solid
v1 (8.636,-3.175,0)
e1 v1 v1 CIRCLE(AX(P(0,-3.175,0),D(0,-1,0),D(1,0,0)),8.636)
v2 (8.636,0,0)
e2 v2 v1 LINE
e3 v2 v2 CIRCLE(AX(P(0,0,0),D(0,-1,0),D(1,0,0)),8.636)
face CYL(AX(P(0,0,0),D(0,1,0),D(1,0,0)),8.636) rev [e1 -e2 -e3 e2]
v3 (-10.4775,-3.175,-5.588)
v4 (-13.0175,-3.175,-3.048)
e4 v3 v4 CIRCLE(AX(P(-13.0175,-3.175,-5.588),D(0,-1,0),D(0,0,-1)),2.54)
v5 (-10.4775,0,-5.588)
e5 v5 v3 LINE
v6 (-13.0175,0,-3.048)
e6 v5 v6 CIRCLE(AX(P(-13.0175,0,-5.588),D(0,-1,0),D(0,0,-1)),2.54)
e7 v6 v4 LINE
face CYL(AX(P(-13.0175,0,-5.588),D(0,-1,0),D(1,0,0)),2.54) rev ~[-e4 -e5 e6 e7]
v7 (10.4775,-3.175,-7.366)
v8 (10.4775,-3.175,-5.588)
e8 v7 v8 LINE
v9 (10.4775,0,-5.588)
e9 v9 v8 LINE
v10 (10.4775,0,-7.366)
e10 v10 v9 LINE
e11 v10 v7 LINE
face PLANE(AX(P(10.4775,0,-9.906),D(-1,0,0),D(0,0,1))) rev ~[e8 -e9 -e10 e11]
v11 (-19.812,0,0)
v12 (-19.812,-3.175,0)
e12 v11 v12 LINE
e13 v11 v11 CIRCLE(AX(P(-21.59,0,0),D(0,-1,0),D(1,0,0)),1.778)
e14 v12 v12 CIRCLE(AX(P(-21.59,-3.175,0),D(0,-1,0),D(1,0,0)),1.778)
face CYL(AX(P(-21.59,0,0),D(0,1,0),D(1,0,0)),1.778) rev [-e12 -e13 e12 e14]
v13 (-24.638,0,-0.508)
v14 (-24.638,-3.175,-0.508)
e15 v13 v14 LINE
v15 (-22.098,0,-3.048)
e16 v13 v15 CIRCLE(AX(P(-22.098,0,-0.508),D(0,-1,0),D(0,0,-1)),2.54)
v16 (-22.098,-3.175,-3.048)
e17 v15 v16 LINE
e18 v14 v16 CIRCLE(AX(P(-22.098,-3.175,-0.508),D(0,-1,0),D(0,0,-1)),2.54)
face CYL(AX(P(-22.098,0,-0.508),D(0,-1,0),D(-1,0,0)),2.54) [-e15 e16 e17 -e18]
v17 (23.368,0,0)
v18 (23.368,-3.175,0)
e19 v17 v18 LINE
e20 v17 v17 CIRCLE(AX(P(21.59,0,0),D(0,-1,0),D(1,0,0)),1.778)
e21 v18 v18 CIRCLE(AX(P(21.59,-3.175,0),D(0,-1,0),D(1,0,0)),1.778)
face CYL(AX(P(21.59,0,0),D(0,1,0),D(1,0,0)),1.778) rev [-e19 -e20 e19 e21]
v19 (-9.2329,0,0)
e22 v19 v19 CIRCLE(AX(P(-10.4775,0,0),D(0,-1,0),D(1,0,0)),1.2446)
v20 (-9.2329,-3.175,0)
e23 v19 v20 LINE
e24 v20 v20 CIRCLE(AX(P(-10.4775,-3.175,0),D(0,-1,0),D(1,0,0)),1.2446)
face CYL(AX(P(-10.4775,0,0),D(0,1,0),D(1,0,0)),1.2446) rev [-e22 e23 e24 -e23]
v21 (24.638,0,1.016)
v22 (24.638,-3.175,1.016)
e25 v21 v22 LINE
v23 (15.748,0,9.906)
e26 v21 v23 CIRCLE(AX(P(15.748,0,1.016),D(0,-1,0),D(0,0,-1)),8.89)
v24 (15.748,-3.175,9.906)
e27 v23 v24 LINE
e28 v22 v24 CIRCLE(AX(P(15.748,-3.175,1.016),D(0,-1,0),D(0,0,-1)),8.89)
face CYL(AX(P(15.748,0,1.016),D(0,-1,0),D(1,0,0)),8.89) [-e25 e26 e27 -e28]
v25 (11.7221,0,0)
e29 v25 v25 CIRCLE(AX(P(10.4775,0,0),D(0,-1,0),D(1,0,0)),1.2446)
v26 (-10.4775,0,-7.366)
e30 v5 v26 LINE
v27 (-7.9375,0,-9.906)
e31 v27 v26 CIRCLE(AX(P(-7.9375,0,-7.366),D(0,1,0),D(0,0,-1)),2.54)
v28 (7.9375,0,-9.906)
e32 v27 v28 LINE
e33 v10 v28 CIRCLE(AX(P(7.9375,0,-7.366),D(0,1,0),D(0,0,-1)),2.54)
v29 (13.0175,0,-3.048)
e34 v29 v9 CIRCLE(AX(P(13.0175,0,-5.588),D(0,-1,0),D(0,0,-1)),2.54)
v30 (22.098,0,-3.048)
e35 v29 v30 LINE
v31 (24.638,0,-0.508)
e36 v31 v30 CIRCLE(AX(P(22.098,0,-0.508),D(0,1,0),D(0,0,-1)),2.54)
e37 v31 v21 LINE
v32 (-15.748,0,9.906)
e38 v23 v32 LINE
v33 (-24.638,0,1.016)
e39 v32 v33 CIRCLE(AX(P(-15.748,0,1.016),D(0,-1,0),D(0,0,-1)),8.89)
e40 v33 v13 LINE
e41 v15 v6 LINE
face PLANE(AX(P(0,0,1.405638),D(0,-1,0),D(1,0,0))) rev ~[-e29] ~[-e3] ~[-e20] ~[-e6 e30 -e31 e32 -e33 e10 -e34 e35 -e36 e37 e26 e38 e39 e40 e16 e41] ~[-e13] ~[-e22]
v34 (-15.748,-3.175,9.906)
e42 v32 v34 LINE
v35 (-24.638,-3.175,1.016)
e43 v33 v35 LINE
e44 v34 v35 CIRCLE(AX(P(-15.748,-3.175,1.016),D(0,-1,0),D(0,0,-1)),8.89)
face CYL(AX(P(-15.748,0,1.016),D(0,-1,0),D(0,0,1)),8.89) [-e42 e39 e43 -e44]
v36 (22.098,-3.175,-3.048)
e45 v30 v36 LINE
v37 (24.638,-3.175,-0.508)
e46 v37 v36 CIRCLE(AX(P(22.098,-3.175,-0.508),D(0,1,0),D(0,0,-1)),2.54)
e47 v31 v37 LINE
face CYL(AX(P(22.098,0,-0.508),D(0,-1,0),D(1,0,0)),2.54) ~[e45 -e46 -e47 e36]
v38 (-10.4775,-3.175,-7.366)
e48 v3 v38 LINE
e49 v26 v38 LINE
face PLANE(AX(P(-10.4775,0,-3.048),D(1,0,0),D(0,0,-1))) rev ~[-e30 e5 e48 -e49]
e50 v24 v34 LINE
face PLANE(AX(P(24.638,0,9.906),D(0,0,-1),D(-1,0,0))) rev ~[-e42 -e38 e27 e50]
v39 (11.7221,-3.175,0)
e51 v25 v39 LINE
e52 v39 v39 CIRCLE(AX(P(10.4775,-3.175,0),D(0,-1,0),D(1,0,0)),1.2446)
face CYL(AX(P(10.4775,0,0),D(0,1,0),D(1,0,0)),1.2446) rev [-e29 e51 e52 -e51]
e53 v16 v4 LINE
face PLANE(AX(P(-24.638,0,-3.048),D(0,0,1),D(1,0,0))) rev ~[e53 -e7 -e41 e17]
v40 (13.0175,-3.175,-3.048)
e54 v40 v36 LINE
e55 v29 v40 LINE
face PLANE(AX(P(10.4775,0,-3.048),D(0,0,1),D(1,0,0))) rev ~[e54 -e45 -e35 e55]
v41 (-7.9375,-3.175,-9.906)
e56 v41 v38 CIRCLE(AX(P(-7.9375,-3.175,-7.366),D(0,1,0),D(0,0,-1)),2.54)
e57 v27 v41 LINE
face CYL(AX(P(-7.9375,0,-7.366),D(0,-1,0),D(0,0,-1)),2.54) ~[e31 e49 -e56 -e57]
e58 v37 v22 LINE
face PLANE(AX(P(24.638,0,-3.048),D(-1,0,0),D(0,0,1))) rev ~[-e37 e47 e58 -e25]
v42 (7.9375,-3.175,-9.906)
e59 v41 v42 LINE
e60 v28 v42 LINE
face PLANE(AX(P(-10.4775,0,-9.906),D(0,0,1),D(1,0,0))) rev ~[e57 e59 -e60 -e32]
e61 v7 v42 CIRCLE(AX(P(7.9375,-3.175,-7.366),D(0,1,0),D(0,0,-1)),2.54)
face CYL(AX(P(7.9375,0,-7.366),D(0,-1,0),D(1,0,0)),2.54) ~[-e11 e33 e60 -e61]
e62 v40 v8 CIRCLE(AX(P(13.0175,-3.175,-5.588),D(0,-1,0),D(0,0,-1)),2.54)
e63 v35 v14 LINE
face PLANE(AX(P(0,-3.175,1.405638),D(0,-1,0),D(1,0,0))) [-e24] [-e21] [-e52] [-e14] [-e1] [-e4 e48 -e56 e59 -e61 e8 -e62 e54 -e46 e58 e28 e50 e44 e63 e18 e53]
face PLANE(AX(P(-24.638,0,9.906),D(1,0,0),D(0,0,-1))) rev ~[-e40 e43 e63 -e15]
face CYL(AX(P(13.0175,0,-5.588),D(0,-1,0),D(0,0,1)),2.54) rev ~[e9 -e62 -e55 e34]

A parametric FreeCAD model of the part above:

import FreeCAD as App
import Part
import Sketcher

V = App.Vector
Q = App.Units.Quantity


def edges_at(feature, points):
    """Names of the edges that pass closest to the given points."""
    edges = feature.Shape.Edges
    near = lambda p: min(range(len(edges)), key=lambda i: edges[i].distToShape(Part.Vertex(*p))[0])
    return sorted({f"Edge{near(p) + 1}" for p in points})


def add_polygon(sketch, points):
    """Adds a closed chain of lines whose ends are joined by coincident constraints."""
    first, n = sketch.GeometryCount, len(points)
    for a, b in zip(points, points[1:] + points[:1]):
        sketch.addGeometry(Part.LineSegment(App.Vector(*a, 0), App.Vector(*b, 0)), False)
    for i in range(n):
        sketch.addConstraint(Sketcher.Constraint("Coincident", first + i, 2, first + (i + 1) % n, 1))

doc = App.newDocument("Part")
body = doc.addObject("PartDesign::Body", "Body")

sketch1 = doc.addObject("Sketcher::SketchObject", "Sketch")
body.addObject(sketch1)
sketch1.AttachmentSupport = (doc.XZ_Plane, [""])
sketch1.MapMode = "FlatFace"
add_polygon(sketch1, [(24.6, -3), (24.6, 9.9), (-24.6, 9.9), (-24.6, -3), (-10.5, -3), (-10.5, -9.9), (10.5, -9.9), (10.5, -3)])
sketch1.addGeometry(Part.Circle(V(-21.6, 0, 0), V(0, 0, 1), 1.8), False)
sketch1.addGeometry(Part.Circle(V(-10.5, 0, 0), V(0, 0, 1), 1.2), False)
sketch1.addGeometry(Part.Circle(V(0, 0, 0), V(0, 0, 1), 8.6), False)
sketch1.addGeometry(Part.Circle(V(10.5, 0, 0), V(0, 0, 1), 1.2), False)
sketch1.addGeometry(Part.Circle(V(21.6, 0, 0), V(0, 0, 1), 1.8), False)
sketch1.addConstraint([
    Sketcher.Constraint("Vertical", 0),
    Sketcher.Constraint("Horizontal", 1),
    Sketcher.Constraint("Vertical", 2),
    Sketcher.Constraint("Horizontal", 3),
    Sketcher.Constraint("Vertical", 4),
    Sketcher.Constraint("Horizontal", 5),
    Sketcher.Constraint("Vertical", 6),
    Sketcher.Constraint("Horizontal", 7),
    Sketcher.Constraint("Coincident", 10, 3, -1, 1),
    Sketcher.Constraint("Equal", 9, 11),
    Sketcher.Constraint("Equal", 8, 12),
    Sketcher.Constraint("Symmetric", 9, 3, 11, 3, -1, 1),
    Sketcher.Constraint("Symmetric", 8, 3, 12, 3, -1, 1),
    Sketcher.Constraint("Symmetric", 3, 2, 6, 2, -2),
    Sketcher.Constraint("PointOnObject", 8, 3, -1),
    Sketcher.Constraint("PointOnObject", 9, 3, -1),
    Sketcher.Constraint("Vertical", 9, 3, 3, 2),
    Sketcher.Constraint("Equal", 3, 7),
    Sketcher.Constraint("Diameter", 8, Q("0.14 in")),
    Sketcher.Constraint("Diameter", 10, Q("0.68 in")),
    Sketcher.Constraint("Diameter", 9, Q("0.098 in")),
    Sketcher.Constraint("DistanceX", 1, 2, 1, 1, Q("1.94 in")),
    Sketcher.Constraint("DistanceY", 0, 1, 0, 2, Q("0.51 in")),
    Sketcher.Constraint("DistanceY", 4, 2, 4, 1, Q("0.27 in")),
    Sketcher.Constraint("DistanceX", 8, 3, 12, 3, Q("1.7 in")),
    Sketcher.Constraint("DistanceX", 5, 1, 5, 2, Q("0.825 in")),
    Sketcher.Constraint("DistanceY", -1, 1, 0, 2, Q("0.39 in")),
])
pad1 = doc.addObject("PartDesign::Pad", "Pad")
body.addObject(pad1)
pad1.Profile = sketch1
pad1.Length = Q("0.125 in")
doc.recompute()

fillet = doc.addObject("PartDesign::Fillet", "Fillet")
body.addObject(fillet)
fillet.Base = (pad1, edges_at(pad1, [(-24.638, -1.587, 9.906), (24.638, -1.587, 9.906)]))
fillet.Radius = Q("0.35 in")
doc.recompute()

fillet2 = doc.addObject("PartDesign::Fillet", "Fillet001")
body.addObject(fillet2)
fillet2.Base = (fillet, edges_at(fillet, [
    (-24.638, -1.587, -3.048),
    (-10.477, -1.587, -3.048),
    (-10.477, -1.587, -9.906),
    (10.477, -1.587, -9.906),
    (24.638, -1.587, -3.048),
    (10.477, -1.587, -3.048),
]))
fillet2.Radius = Q("0.1 in")

doc.recompute()
